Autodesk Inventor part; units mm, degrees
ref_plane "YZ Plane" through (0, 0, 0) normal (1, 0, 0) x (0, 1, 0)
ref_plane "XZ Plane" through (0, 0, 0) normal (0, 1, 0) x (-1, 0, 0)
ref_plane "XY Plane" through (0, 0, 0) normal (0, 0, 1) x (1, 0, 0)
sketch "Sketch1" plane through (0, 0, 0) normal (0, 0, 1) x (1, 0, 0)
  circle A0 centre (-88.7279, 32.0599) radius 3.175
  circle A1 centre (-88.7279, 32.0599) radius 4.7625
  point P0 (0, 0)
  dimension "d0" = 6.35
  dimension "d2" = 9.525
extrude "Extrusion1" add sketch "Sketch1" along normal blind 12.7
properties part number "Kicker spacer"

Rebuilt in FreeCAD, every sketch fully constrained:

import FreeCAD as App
import Part
import Sketcher

V = App.Vector
Q = App.Units.Quantity

doc = App.newDocument("Part")
body = doc.addObject("PartDesign::Body", "Body")

# Sketch on XY plane
sketch1 = body.newObject("Sketcher::SketchObject", "Sketch")
sketch1.AttachmentSupport = (doc.getObject("XY_Plane"), [""])
sketch1.MapMode = "FlatFace"
sketch1.addGeometry(Part.Circle(V(-88.7, 32.1, 0), V(0, 0, 1), 4.8), False)
sketch1.addGeometry(Part.Circle(V(-88.7, 32.1, 0), V(0, 0, 1), 3.2), False)
sketch1.addConstraint(Sketcher.Constraint("Coincident", 1, 3, 0, 3))
sketch1.addConstraint(Sketcher.Constraint("Diameter", 1, Q("0.25 in")))
sketch1.addConstraint(Sketcher.Constraint("Diameter", 0, Q("0.375 in")))
sketch1.addConstraint(Sketcher.Constraint("DistanceY", -1, 1, 0, 3, Q("1.2622 in")))
sketch1.addConstraint(Sketcher.Constraint("DistanceX", 0, 3, -1, 1, 88.728))
pad1 = body.newObject("PartDesign::Pad", "Pad")
pad1.Profile = sketch1
pad1.Length = Q("0.5 in")

doc.recompute()
